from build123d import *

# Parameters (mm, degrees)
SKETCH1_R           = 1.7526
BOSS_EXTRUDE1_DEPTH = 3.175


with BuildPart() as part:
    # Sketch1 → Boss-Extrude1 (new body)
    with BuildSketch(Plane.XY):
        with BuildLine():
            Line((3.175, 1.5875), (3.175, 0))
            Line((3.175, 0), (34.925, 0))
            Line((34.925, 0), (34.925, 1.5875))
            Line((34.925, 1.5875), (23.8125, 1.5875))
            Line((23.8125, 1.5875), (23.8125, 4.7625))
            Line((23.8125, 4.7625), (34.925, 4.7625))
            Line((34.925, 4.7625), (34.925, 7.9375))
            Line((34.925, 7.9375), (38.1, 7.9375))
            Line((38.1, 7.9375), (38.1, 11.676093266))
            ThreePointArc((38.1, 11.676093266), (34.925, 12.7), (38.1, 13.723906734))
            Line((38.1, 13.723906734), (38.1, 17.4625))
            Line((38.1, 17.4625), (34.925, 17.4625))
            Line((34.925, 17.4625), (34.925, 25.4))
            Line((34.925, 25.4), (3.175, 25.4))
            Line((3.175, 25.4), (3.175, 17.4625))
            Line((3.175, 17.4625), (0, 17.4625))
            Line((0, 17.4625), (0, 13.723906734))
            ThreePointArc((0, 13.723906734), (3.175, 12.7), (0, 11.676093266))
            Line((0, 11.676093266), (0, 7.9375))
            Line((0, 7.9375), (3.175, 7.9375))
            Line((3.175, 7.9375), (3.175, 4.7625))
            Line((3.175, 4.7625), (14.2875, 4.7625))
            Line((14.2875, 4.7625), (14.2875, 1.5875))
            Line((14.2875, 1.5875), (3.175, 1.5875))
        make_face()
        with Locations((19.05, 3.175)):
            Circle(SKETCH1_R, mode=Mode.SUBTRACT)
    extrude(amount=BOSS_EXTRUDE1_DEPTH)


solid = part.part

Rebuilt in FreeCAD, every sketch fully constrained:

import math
import FreeCAD as App
import Part
import Sketcher
from FreeCAD import Vector
Q = App.Units.Quantity

doc = App.newDocument("Part")
body = doc.addObject("PartDesign::Body", "Body")

# Sketch on XY plane
sketch1 = body.newObject("Sketcher::SketchObject", "Sketch")
sketch1.AttachmentSupport = (doc.getObject("XY_Plane"), [""])
sketch1.MapMode = "FlatFace"
sketch1.addGeometry(Part.LineSegment(Vector(3.175, 1.5875, 0), Vector(3.175, 0, 0)), False)
sketch1.addGeometry(Part.LineSegment(Vector(3.175, 0, 0), Vector(34.925, 0, 0)), False)
sketch1.addGeometry(Part.LineSegment(Vector(34.925, 0, 0), Vector(34.925, 1.5875, 0)), False)
sketch1.addGeometry(Part.LineSegment(Vector(34.925, 1.5875, 0), Vector(23.8125, 1.5875, 0)), False)
sketch1.addGeometry(Part.LineSegment(Vector(23.8125, 1.5875, 0), Vector(23.8125, 4.7625, 0)), False)
sketch1.addGeometry(Part.LineSegment(Vector(23.8125, 4.7625, 0), Vector(34.925, 4.7625, 0)), False)
sketch1.addGeometry(Part.LineSegment(Vector(34.925, 4.7625, 0), Vector(34.925, 7.9375, 0)), False)
sketch1.addGeometry(Part.LineSegment(Vector(34.925, 7.9375, 0), Vector(38.1, 7.9375, 0)), False)
sketch1.addGeometry(Part.LineSegment(Vector(38.1, 7.9375, 0), Vector(38.1, 11.676093, 0)), False)
sketch1.addGeometry(Part.ArcOfCircle(Part.Circle(Vector(36.6776, 12.7, 0), Vector(0, 0, 1), 1.7526), math.radians(35.748017), math.radians(324.251983)), False)
sketch1.addGeometry(Part.LineSegment(Vector(38.1, 13.723907, 0), Vector(38.1, 17.4625, 0)), False)
sketch1.addGeometry(Part.LineSegment(Vector(38.1, 17.4625, 0), Vector(34.925, 17.4625, 0)), False)
sketch1.addGeometry(Part.LineSegment(Vector(34.925, 17.4625, 0), Vector(34.925, 25.4, 0)), False)
sketch1.addGeometry(Part.LineSegment(Vector(34.925, 25.4, 0), Vector(3.175, 25.4, 0)), False)
sketch1.addGeometry(Part.LineSegment(Vector(3.175, 25.4, 0), Vector(3.175, 17.4625, 0)), False)
sketch1.addGeometry(Part.LineSegment(Vector(3.175, 17.4625, 0), Vector(0, 17.4625, 0)), False)
sketch1.addGeometry(Part.LineSegment(Vector(0, 17.4625, 0), Vector(0, 13.723907, 0)), False)
sketch1.addGeometry(Part.ArcOfCircle(Part.Circle(Vector(1.4224, 12.7, 0), Vector(0, 0, 1), 1.7526), math.radians(-144.251983), math.radians(144.251983)), False)
sketch1.addGeometry(Part.LineSegment(Vector(0, 11.676093, 0), Vector(0, 7.9375, 0)), False)
sketch1.addGeometry(Part.LineSegment(Vector(0, 7.9375, 0), Vector(3.175, 7.9375, 0)), False)
sketch1.addGeometry(Part.LineSegment(Vector(3.175, 7.9375, 0), Vector(3.175, 4.7625, 0)), False)
sketch1.addGeometry(Part.LineSegment(Vector(3.175, 4.7625, 0), Vector(14.2875, 4.7625, 0)), False)
sketch1.addGeometry(Part.LineSegment(Vector(14.2875, 4.7625, 0), Vector(14.2875, 1.5875, 0)), False)
sketch1.addGeometry(Part.LineSegment(Vector(14.2875, 1.5875, 0), Vector(3.175, 1.5875, 0)), False)
sketch1.addGeometry(Part.Circle(Vector(19.05, 3.175, 0), Vector(0, 0, 1), 1.7526), False)
sketch1.addConstraint(Sketcher.Constraint("Coincident", 0, 2, 1, 1))
sketch1.addConstraint(Sketcher.Constraint("Coincident", 1, 2, 2, 1))
sketch1.addConstraint(Sketcher.Constraint("Coincident", 2, 2, 3, 1))
sketch1.addConstraint(Sketcher.Constraint("Coincident", 3, 2, 4, 1))
sketch1.addConstraint(Sketcher.Constraint("Coincident", 4, 2, 5, 1))
sketch1.addConstraint(Sketcher.Constraint("Coincident", 5, 2, 6, 1))
sketch1.addConstraint(Sketcher.Constraint("Coincident", 6, 2, 7, 1))
sketch1.addConstraint(Sketcher.Constraint("Coincident", 7, 2, 8, 1))
sketch1.addConstraint(Sketcher.Constraint("Coincident", 8, 2, 9, 2))
sketch1.addConstraint(Sketcher.Constraint("Coincident", 9, 1, 10, 1))
sketch1.addConstraint(Sketcher.Constraint("Coincident", 10, 2, 11, 1))
sketch1.addConstraint(Sketcher.Constraint("Coincident", 11, 2, 12, 1))
sketch1.addConstraint(Sketcher.Constraint("Coincident", 12, 2, 13, 1))
sketch1.addConstraint(Sketcher.Constraint("Coincident", 13, 2, 14, 1))
sketch1.addConstraint(Sketcher.Constraint("Coincident", 14, 2, 15, 1))
sketch1.addConstraint(Sketcher.Constraint("Coincident", 15, 2, 16, 1))
sketch1.addConstraint(Sketcher.Constraint("Coincident", 16, 2, 17, 2))
sketch1.addConstraint(Sketcher.Constraint("Coincident", 17, 1, 18, 1))
sketch1.addConstraint(Sketcher.Constraint("Coincident", 18, 2, 19, 1))
sketch1.addConstraint(Sketcher.Constraint("Coincident", 19, 2, 20, 1))
sketch1.addConstraint(Sketcher.Constraint("Coincident", 20, 2, 21, 1))
sketch1.addConstraint(Sketcher.Constraint("Coincident", 21, 2, 22, 1))
sketch1.addConstraint(Sketcher.Constraint("Coincident", 22, 2, 23, 1))
sketch1.addConstraint(Sketcher.Constraint("Coincident", 23, 2, 0, 1))
sketch1.addConstraint(Sketcher.Constraint("Vertical", 0))
sketch1.addConstraint(Sketcher.Constraint("Horizontal", 1))
sketch1.addConstraint(Sketcher.Constraint("Vertical", 2))
sketch1.addConstraint(Sketcher.Constraint("Horizontal", 3))
sketch1.addConstraint(Sketcher.Constraint("Vertical", 4))
sketch1.addConstraint(Sketcher.Constraint("Horizontal", 5))
sketch1.addConstraint(Sketcher.Constraint("Vertical", 6))
sketch1.addConstraint(Sketcher.Constraint("Horizontal", 7))
sketch1.addConstraint(Sketcher.Constraint("Vertical", 8))
sketch1.addConstraint(Sketcher.Constraint("Vertical", 10))
sketch1.addConstraint(Sketcher.Constraint("Horizontal", 11))
sketch1.addConstraint(Sketcher.Constraint("Vertical", 12))
sketch1.addConstraint(Sketcher.Constraint("Horizontal", 13))
sketch1.addConstraint(Sketcher.Constraint("Vertical", 14))
sketch1.addConstraint(Sketcher.Constraint("Horizontal", 15))
sketch1.addConstraint(Sketcher.Constraint("Vertical", 16))
sketch1.addConstraint(Sketcher.Constraint("Vertical", 18))
sketch1.addConstraint(Sketcher.Constraint("Horizontal", 19))
sketch1.addConstraint(Sketcher.Constraint("Vertical", 20))
sketch1.addConstraint(Sketcher.Constraint("Horizontal", 21))
sketch1.addConstraint(Sketcher.Constraint("Vertical", 22))
sketch1.addConstraint(Sketcher.Constraint("Horizontal", 23))
sketch1.addConstraint(Sketcher.Constraint("Equal", 9, 17))
sketch1.addConstraint(Sketcher.Constraint("Equal", 17, 24))
sketch1.addConstraint(Sketcher.Constraint("PointOnObject", 0, 2, -1))
sketch1.addConstraint(Sketcher.Constraint("PointOnObject", 15, 2, -2))
sketch1.addConstraint(Sketcher.Constraint("PointOnObject", 17, 1, -2))
sketch1.addConstraint(Sketcher.Constraint("Horizontal", 9, 3, 17, 3))
sketch1.addConstraint(Sketcher.Constraint("Horizontal", 11, 2, 14, 2))
sketch1.addConstraint(Sketcher.Constraint("Horizontal", 9, 1, 16, 2))
sketch1.addConstraint(Sketcher.Constraint("Horizontal", 8, 2, 17, 1))
sketch1.addConstraint(Sketcher.Constraint("Horizontal", 7, 2, 18, 2))
sketch1.addConstraint(Sketcher.Constraint("Horizontal", 5, 2, 20, 2))
sketch1.addConstraint(Sketcher.Constraint("Horizontal", 3, 2, 22, 2))
sketch1.addConstraint(Sketcher.Constraint("Vertical", 2, 2, 5, 2))
sketch1.addConstraint(Sketcher.Constraint("Vertical", 6, 2, 11, 2))
sketch1.addConstraint(Sketcher.Constraint("Vertical", 0, 2, 13, 2))
sketch1.addConstraint(Sketcher.Constraint("Vertical", 14, 2, 19, 2))
sketch1.addConstraint(Sketcher.Constraint("Equal", 11, 15))
sketch1.addConstraint(Sketcher.Constraint("Equal", 5, 21))
sketch1.addConstraint(Sketcher.Constraint("Equal", 19, 4))
sketch1.addConstraint(Sketcher.Constraint("Equal", 4, 6))
sketch1.addConstraint(Sketcher.Constraint("Equal", 8, 10))
sketch1.addConstraint(Sketcher.Constraint("Diameter", 24, Q("0.138 in")))
sketch1.addConstraint(Sketcher.Constraint("DistanceY", -1, 1, 12, 2, Q("1 in")))
sketch1.addConstraint(Sketcher.Constraint("DistanceX", 1, 1, 1, 2, Q("1.25 in")))
sketch1.addConstraint(Sketcher.Constraint("DistanceY", -1, 1, 9, 3, Q("0.5 in")))
sketch1.addConstraint(Sketcher.Constraint("DistanceX", -1, 1, 7, 2, Q("1.5 in")))
sketch1.addConstraint(Sketcher.Constraint("DistanceY", 4, 2, 14, 2, Q("0.5 in")))
sketch1.addConstraint(Sketcher.Constraint("DistanceX", 3, 2, 3, 1, Q("0.4375 in")))
sketch1.addConstraint(Sketcher.Constraint("DistanceX", -1, 1, 24, 3, Q("0.75 in")))
sketch1.addConstraint(Sketcher.Constraint("DistanceX", -1, 1, 9, 3, Q("1.444 in")))
sketch1.addConstraint(Sketcher.Constraint("DistanceY", -1, 1, 24, 3, Q("0.125 in")))
pad1 = body.newObject("PartDesign::Pad", "Pad")
pad1.Profile = sketch1
pad1.Length = Q("0.125 in")

doc.recompute()
